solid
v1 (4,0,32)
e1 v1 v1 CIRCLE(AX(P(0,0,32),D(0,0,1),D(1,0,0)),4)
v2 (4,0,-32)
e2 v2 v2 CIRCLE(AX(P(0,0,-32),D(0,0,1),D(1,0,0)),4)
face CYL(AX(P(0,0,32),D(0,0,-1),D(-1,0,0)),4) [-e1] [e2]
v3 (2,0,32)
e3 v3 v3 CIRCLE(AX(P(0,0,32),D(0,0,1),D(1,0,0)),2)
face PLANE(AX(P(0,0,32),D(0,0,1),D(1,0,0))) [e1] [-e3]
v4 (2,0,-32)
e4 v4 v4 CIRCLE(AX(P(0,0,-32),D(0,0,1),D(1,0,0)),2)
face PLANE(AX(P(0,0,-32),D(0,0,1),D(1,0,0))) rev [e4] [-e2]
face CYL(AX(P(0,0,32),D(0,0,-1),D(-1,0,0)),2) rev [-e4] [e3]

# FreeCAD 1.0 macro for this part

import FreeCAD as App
import Part
import Sketcher
from FreeCAD import Vector

doc = App.newDocument("Part")
params = doc.addObject("Spreadsheet::Sheet", "Params")
for row, (alias, value) in enumerate([
    ("sketch1_diameter", "8 mm"),
    ("sketch1_diameter2", "4 mm"),
    ("pad1_length", "64 mm"),
], start=1):
    params.set(f"A{row}", alias)
    params.set(f"B{row}", "=" + value)
    params.setAlias(f"B{row}", alias)

body = doc.addObject("PartDesign::Body", "Body")

# Sketch on XY plane
sketch1 = doc.addObject("Sketcher::SketchObject", "Sketch")
body.addObject(sketch1)
sketch1.AttachmentSupport = (doc.XY_Plane, [""])
sketch1.MapMode = "FlatFace"
sketch1.addGeometry([
    Part.Circle(Vector(0, 0, 0), Vector(0, 0, 1), 4),
    Part.Circle(Vector(0, 0, 0), Vector(0, 0, 1), 2),
], False)
sketch1.addConstraint([
    Sketcher.Constraint("Coincident", 0, 3, -1, 1),
    Sketcher.Constraint("Coincident", 1, 3, -1, 1),
    Sketcher.Constraint("Diameter", 0, 8.0),
    Sketcher.Constraint("Diameter", 1, 4.0),
])
sketch1.setExpression("Constraints[2]", "Params.sketch1_diameter")
sketch1.setExpression("Constraints[3]", "Params.sketch1_diameter2")
pad1 = doc.addObject("PartDesign::Pad", "Pad")
body.addObject(pad1)
pad1.Profile = sketch1
pad1.setExpression("Length", "Params.pad1_length")
pad1.Midplane = True

doc.recompute()
